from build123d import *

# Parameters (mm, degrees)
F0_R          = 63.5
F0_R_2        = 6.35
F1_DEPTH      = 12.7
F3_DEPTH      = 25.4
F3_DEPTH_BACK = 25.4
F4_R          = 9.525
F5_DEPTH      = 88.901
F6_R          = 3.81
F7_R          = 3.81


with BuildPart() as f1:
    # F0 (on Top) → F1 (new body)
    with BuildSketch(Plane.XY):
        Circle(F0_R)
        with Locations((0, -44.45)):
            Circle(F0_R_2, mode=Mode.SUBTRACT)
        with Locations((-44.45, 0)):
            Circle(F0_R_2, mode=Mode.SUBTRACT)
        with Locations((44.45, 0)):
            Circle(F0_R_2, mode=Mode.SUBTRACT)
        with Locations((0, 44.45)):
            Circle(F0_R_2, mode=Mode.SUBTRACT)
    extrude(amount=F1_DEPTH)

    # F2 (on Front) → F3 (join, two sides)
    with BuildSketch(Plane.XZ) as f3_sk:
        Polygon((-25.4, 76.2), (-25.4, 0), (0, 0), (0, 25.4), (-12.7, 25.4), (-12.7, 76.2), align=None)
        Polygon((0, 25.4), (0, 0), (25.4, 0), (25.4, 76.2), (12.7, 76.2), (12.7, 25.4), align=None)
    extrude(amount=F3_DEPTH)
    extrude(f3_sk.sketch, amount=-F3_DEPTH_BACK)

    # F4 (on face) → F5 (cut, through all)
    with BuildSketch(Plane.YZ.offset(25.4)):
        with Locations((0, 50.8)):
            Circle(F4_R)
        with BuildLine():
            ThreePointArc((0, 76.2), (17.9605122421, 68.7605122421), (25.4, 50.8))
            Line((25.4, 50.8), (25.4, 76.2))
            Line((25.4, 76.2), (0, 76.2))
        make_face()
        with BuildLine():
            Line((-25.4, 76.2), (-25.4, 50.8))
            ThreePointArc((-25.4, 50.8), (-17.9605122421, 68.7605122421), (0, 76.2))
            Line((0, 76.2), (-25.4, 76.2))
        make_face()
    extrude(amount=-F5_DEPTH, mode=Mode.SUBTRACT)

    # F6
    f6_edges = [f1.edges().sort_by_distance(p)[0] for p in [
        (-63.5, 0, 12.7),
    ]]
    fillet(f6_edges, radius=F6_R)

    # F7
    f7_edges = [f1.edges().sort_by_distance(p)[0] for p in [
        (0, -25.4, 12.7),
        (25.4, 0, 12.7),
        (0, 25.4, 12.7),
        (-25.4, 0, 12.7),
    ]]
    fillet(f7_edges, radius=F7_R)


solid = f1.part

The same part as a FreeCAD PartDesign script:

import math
import FreeCAD as App
import Part
import Sketcher

V = App.Vector
Q = App.Units.Quantity


def edges_at(feature, points):
    """Names of the edges that pass closest to the given points."""
    edges = feature.Shape.Edges
    near = lambda p: min(range(len(edges)), key=lambda i: edges[i].distToShape(Part.Vertex(*p))[0])
    return sorted({f"Edge{near(p) + 1}" for p in points})

doc = App.newDocument("Part")
body = doc.addObject("PartDesign::Body", "Body")

# Sketch on XY plane
sketch1 = body.newObject("Sketcher::SketchObject", "Sketch")
sketch1.AttachmentSupport = (doc.getObject("XY_Plane"), [""])
sketch1.MapMode = "FlatFace"
sketch1.addGeometry(Part.Circle(V(0, 0, 0), V(0, 0, 1), 63.5), False)
sketch1.addGeometry(Part.Circle(V(0, -44.45, 0), V(0, 0, 1), 6.35), False)
sketch1.addGeometry(Part.Circle(V(-44.45, 0, 0), V(0, 0, 1), 6.35), False)
sketch1.addGeometry(Part.Circle(V(44.45, 0, 0), V(0, 0, 1), 6.35), False)
sketch1.addGeometry(Part.Circle(V(0, 44.45, 0), V(0, 0, 1), 6.35), False)
sketch1.addConstraint(Sketcher.Constraint("Coincident", 0, 3, -1, 1))
sketch1.addConstraint(Sketcher.Constraint("Equal", 1, 2))
sketch1.addConstraint(Sketcher.Constraint("Equal", 2, 3))
sketch1.addConstraint(Sketcher.Constraint("Equal", 3, 4))
sketch1.addConstraint(Sketcher.Constraint("Symmetric", 2, 3, 3, 3, -1, 1))
sketch1.addConstraint(Sketcher.Constraint("Symmetric", 1, 3, 4, 3, -1, 1))
sketch1.addConstraint(Sketcher.Constraint("PointOnObject", 1, 3, -2))
sketch1.addConstraint(Sketcher.Constraint("PointOnObject", 2, 3, -1))
sketch1.addConstraint(Sketcher.Constraint("Diameter", 0, Q("5 in")))
sketch1.addConstraint(Sketcher.Constraint("Diameter", 1, Q("0.5 in")))
sketch1.addConstraint(Sketcher.Constraint("DistanceX", 2, 3, 3, 3, Q("3.5 in")))
sketch1.addConstraint(Sketcher.Constraint("DistanceY", 1, 3, 4, 3, Q("3.5 in")))
pad1 = body.newObject("PartDesign::Pad", "Pad")
pad1.Profile = sketch1
pad1.Length = Q("0.5 in")

# Sketch on XZ plane
sketch2 = body.newObject("Sketcher::SketchObject", "Sketch001")
sketch2.AttachmentSupport = (doc.getObject("XZ_Plane"), [""])
sketch2.MapMode = "FlatFace"
sketch2.addGeometry(Part.LineSegment(V(-25.4, 76.2, 0), V(-25.4, 0, 0)), False)
sketch2.addGeometry(Part.LineSegment(V(-25.4, 0, 0), V(25.4, 0, 0)), False)
sketch2.addGeometry(Part.LineSegment(V(25.4, 0, 0), V(25.4, 76.2, 0)), False)
sketch2.addGeometry(Part.LineSegment(V(25.4, 76.2, 0), V(12.7, 76.2, 0)), False)
sketch2.addGeometry(Part.LineSegment(V(12.7, 76.2, 0), V(12.7, 25.4, 0)), False)
sketch2.addGeometry(Part.LineSegment(V(12.7, 25.4, 0), V(-12.7, 25.4, 0)), False)
sketch2.addGeometry(Part.LineSegment(V(-12.7, 25.4, 0), V(-12.7, 76.2, 0)), False)
sketch2.addGeometry(Part.LineSegment(V(-12.7, 76.2, 0), V(-25.4, 76.2, 0)), False)
sketch2.addConstraint(Sketcher.Constraint("Coincident", 0, 2, 1, 1))
sketch2.addConstraint(Sketcher.Constraint("Coincident", 1, 2, 2, 1))
sketch2.addConstraint(Sketcher.Constraint("Coincident", 2, 2, 3, 1))
sketch2.addConstraint(Sketcher.Constraint("Coincident", 3, 2, 4, 1))
sketch2.addConstraint(Sketcher.Constraint("Coincident", 4, 2, 5, 1))
sketch2.addConstraint(Sketcher.Constraint("Coincident", 5, 2, 6, 1))
sketch2.addConstraint(Sketcher.Constraint("Coincident", 6, 2, 7, 1))
sketch2.addConstraint(Sketcher.Constraint("Coincident", 7, 2, 0, 1))
sketch2.addConstraint(Sketcher.Constraint("Vertical", 0))
sketch2.addConstraint(Sketcher.Constraint("Horizontal", 1))
sketch2.addConstraint(Sketcher.Constraint("Vertical", 2))
sketch2.addConstraint(Sketcher.Constraint("Horizontal", 3))
sketch2.addConstraint(Sketcher.Constraint("Vertical", 4))
sketch2.addConstraint(Sketcher.Constraint("Horizontal", 5))
sketch2.addConstraint(Sketcher.Constraint("Vertical", 6))
sketch2.addConstraint(Sketcher.Constraint("Horizontal", 7))
sketch2.addConstraint(Sketcher.Constraint("Symmetric", 0, 2, 1, 2, -1, 1))
sketch2.addConstraint(Sketcher.Constraint("Symmetric", 3, 2, 6, 2, -2))
sketch2.addConstraint(Sketcher.Constraint("Equal", 1, 4))
sketch2.addConstraint(Sketcher.Constraint("DistanceX", 1, 1, 1, 2, Q("2 in")))
sketch2.addConstraint(Sketcher.Constraint("DistanceX", 5, 2, 5, 1, Q("1 in")))
sketch2.addConstraint(Sketcher.Constraint("DistanceY", 0, 2, 0, 1, Q("3 in")))
pad2 = body.newObject("PartDesign::Pad", "Pad001")
pad2.Profile = sketch2
pad2.Type = "TwoLengths"
pad2.Length = Q("1 in")
pad2.Length2 = Q("1 in")

# Sketch on YZ plane
sketch3 = body.newObject("Sketcher::SketchObject", "Sketch002")
sketch3.AttachmentSupport = (doc.getObject("YZ_Plane"), [""])
sketch3.MapMode = "FlatFace"
sketch3.AttachmentOffset = App.Placement(V(0, 0, 1 * 25.4), App.Rotation())
sketch3.addGeometry(Part.Circle(V(0, 50.8, 0), V(0, 0, 1), 9.525), False)
sketch3.addGeometry(Part.ArcOfCircle(Part.Circle(V(0, 50.8, 0), V(0, 0, 1), 25.4), math.radians(0), math.radians(90)), False)
sketch3.addGeometry(Part.LineSegment(V(25.4, 50.8, 0), V(25.4, 76.2, 0)), False)
sketch3.addGeometry(Part.LineSegment(V(25.4, 76.2, 0), V(0, 76.2, 0)), False)
sketch3.addGeometry(Part.LineSegment(V(-25.4, 76.2, 0), V(-25.4, 50.8, 0)), False)
sketch3.addGeometry(Part.ArcOfCircle(Part.Circle(V(0, 50.8, 0), V(0, 0, 1), 25.4), math.radians(90), math.radians(180)), False)
sketch3.addGeometry(Part.LineSegment(V(0, 76.2, 0), V(-25.4, 76.2, 0)), False)
sketch3.addConstraint(Sketcher.Constraint("Tangent", 1, 1, 2, 1))
sketch3.addConstraint(Sketcher.Constraint("Coincident", 2, 2, 3, 1))
sketch3.addConstraint(Sketcher.Constraint("Tangent", 3, 2, 1, 2))
sketch3.addConstraint(Sketcher.Constraint("Tangent", 4, 2, 5, 2))
sketch3.addConstraint(Sketcher.Constraint("Tangent", 5, 1, 6, 1))
sketch3.addConstraint(Sketcher.Constraint("Coincident", 6, 2, 4, 1))
sketch3.addConstraint(Sketcher.Constraint("Vertical", 2))
sketch3.addConstraint(Sketcher.Constraint("Horizontal", 3))
sketch3.addConstraint(Sketcher.Constraint("Vertical", 4))
sketch3.addConstraint(Sketcher.Constraint("Horizontal", 6))
sketch3.addConstraint(Sketcher.Constraint("Coincident", 1, 3, 0, 3))
sketch3.addConstraint(Sketcher.Constraint("Coincident", 5, 3, 0, 3))
sketch3.addConstraint(Sketcher.Constraint("Equal", 1, 5))
sketch3.addConstraint(Sketcher.Constraint("PointOnObject", 0, 3, -2))
sketch3.addConstraint(Sketcher.Constraint("Radius", 1, Q("1 in")))
sketch3.addConstraint(Sketcher.Constraint("Diameter", 0, Q("0.75 in")))
sketch3.addConstraint(Sketcher.Constraint("DistanceY", -1, 1, 0, 3, Q("2 in")))
pocket1 = body.newObject("PartDesign::Pocket", "Pocket")
pocket1.Profile = sketch3
pocket1.Type = "ThroughAll"
doc.recompute()

fillet = body.newObject("PartDesign::Fillet", "Fillet")
fillet.Base = (pocket1, edges_at(pocket1, [(-63.5, 0, 12.7)]))
fillet.Radius = Q("0.15 in")
doc.recompute()

fillet2 = body.newObject("PartDesign::Fillet", "Fillet001")
fillet2.Base = (fillet, edges_at(fillet, [
    (0, -25.4, 12.7),
    (25.4, 0, 12.7),
    (0, 25.4, 12.7),
    (-25.4, 0, 12.7),
]))
fillet2.Radius = Q("0.15 in")

doc.recompute()
